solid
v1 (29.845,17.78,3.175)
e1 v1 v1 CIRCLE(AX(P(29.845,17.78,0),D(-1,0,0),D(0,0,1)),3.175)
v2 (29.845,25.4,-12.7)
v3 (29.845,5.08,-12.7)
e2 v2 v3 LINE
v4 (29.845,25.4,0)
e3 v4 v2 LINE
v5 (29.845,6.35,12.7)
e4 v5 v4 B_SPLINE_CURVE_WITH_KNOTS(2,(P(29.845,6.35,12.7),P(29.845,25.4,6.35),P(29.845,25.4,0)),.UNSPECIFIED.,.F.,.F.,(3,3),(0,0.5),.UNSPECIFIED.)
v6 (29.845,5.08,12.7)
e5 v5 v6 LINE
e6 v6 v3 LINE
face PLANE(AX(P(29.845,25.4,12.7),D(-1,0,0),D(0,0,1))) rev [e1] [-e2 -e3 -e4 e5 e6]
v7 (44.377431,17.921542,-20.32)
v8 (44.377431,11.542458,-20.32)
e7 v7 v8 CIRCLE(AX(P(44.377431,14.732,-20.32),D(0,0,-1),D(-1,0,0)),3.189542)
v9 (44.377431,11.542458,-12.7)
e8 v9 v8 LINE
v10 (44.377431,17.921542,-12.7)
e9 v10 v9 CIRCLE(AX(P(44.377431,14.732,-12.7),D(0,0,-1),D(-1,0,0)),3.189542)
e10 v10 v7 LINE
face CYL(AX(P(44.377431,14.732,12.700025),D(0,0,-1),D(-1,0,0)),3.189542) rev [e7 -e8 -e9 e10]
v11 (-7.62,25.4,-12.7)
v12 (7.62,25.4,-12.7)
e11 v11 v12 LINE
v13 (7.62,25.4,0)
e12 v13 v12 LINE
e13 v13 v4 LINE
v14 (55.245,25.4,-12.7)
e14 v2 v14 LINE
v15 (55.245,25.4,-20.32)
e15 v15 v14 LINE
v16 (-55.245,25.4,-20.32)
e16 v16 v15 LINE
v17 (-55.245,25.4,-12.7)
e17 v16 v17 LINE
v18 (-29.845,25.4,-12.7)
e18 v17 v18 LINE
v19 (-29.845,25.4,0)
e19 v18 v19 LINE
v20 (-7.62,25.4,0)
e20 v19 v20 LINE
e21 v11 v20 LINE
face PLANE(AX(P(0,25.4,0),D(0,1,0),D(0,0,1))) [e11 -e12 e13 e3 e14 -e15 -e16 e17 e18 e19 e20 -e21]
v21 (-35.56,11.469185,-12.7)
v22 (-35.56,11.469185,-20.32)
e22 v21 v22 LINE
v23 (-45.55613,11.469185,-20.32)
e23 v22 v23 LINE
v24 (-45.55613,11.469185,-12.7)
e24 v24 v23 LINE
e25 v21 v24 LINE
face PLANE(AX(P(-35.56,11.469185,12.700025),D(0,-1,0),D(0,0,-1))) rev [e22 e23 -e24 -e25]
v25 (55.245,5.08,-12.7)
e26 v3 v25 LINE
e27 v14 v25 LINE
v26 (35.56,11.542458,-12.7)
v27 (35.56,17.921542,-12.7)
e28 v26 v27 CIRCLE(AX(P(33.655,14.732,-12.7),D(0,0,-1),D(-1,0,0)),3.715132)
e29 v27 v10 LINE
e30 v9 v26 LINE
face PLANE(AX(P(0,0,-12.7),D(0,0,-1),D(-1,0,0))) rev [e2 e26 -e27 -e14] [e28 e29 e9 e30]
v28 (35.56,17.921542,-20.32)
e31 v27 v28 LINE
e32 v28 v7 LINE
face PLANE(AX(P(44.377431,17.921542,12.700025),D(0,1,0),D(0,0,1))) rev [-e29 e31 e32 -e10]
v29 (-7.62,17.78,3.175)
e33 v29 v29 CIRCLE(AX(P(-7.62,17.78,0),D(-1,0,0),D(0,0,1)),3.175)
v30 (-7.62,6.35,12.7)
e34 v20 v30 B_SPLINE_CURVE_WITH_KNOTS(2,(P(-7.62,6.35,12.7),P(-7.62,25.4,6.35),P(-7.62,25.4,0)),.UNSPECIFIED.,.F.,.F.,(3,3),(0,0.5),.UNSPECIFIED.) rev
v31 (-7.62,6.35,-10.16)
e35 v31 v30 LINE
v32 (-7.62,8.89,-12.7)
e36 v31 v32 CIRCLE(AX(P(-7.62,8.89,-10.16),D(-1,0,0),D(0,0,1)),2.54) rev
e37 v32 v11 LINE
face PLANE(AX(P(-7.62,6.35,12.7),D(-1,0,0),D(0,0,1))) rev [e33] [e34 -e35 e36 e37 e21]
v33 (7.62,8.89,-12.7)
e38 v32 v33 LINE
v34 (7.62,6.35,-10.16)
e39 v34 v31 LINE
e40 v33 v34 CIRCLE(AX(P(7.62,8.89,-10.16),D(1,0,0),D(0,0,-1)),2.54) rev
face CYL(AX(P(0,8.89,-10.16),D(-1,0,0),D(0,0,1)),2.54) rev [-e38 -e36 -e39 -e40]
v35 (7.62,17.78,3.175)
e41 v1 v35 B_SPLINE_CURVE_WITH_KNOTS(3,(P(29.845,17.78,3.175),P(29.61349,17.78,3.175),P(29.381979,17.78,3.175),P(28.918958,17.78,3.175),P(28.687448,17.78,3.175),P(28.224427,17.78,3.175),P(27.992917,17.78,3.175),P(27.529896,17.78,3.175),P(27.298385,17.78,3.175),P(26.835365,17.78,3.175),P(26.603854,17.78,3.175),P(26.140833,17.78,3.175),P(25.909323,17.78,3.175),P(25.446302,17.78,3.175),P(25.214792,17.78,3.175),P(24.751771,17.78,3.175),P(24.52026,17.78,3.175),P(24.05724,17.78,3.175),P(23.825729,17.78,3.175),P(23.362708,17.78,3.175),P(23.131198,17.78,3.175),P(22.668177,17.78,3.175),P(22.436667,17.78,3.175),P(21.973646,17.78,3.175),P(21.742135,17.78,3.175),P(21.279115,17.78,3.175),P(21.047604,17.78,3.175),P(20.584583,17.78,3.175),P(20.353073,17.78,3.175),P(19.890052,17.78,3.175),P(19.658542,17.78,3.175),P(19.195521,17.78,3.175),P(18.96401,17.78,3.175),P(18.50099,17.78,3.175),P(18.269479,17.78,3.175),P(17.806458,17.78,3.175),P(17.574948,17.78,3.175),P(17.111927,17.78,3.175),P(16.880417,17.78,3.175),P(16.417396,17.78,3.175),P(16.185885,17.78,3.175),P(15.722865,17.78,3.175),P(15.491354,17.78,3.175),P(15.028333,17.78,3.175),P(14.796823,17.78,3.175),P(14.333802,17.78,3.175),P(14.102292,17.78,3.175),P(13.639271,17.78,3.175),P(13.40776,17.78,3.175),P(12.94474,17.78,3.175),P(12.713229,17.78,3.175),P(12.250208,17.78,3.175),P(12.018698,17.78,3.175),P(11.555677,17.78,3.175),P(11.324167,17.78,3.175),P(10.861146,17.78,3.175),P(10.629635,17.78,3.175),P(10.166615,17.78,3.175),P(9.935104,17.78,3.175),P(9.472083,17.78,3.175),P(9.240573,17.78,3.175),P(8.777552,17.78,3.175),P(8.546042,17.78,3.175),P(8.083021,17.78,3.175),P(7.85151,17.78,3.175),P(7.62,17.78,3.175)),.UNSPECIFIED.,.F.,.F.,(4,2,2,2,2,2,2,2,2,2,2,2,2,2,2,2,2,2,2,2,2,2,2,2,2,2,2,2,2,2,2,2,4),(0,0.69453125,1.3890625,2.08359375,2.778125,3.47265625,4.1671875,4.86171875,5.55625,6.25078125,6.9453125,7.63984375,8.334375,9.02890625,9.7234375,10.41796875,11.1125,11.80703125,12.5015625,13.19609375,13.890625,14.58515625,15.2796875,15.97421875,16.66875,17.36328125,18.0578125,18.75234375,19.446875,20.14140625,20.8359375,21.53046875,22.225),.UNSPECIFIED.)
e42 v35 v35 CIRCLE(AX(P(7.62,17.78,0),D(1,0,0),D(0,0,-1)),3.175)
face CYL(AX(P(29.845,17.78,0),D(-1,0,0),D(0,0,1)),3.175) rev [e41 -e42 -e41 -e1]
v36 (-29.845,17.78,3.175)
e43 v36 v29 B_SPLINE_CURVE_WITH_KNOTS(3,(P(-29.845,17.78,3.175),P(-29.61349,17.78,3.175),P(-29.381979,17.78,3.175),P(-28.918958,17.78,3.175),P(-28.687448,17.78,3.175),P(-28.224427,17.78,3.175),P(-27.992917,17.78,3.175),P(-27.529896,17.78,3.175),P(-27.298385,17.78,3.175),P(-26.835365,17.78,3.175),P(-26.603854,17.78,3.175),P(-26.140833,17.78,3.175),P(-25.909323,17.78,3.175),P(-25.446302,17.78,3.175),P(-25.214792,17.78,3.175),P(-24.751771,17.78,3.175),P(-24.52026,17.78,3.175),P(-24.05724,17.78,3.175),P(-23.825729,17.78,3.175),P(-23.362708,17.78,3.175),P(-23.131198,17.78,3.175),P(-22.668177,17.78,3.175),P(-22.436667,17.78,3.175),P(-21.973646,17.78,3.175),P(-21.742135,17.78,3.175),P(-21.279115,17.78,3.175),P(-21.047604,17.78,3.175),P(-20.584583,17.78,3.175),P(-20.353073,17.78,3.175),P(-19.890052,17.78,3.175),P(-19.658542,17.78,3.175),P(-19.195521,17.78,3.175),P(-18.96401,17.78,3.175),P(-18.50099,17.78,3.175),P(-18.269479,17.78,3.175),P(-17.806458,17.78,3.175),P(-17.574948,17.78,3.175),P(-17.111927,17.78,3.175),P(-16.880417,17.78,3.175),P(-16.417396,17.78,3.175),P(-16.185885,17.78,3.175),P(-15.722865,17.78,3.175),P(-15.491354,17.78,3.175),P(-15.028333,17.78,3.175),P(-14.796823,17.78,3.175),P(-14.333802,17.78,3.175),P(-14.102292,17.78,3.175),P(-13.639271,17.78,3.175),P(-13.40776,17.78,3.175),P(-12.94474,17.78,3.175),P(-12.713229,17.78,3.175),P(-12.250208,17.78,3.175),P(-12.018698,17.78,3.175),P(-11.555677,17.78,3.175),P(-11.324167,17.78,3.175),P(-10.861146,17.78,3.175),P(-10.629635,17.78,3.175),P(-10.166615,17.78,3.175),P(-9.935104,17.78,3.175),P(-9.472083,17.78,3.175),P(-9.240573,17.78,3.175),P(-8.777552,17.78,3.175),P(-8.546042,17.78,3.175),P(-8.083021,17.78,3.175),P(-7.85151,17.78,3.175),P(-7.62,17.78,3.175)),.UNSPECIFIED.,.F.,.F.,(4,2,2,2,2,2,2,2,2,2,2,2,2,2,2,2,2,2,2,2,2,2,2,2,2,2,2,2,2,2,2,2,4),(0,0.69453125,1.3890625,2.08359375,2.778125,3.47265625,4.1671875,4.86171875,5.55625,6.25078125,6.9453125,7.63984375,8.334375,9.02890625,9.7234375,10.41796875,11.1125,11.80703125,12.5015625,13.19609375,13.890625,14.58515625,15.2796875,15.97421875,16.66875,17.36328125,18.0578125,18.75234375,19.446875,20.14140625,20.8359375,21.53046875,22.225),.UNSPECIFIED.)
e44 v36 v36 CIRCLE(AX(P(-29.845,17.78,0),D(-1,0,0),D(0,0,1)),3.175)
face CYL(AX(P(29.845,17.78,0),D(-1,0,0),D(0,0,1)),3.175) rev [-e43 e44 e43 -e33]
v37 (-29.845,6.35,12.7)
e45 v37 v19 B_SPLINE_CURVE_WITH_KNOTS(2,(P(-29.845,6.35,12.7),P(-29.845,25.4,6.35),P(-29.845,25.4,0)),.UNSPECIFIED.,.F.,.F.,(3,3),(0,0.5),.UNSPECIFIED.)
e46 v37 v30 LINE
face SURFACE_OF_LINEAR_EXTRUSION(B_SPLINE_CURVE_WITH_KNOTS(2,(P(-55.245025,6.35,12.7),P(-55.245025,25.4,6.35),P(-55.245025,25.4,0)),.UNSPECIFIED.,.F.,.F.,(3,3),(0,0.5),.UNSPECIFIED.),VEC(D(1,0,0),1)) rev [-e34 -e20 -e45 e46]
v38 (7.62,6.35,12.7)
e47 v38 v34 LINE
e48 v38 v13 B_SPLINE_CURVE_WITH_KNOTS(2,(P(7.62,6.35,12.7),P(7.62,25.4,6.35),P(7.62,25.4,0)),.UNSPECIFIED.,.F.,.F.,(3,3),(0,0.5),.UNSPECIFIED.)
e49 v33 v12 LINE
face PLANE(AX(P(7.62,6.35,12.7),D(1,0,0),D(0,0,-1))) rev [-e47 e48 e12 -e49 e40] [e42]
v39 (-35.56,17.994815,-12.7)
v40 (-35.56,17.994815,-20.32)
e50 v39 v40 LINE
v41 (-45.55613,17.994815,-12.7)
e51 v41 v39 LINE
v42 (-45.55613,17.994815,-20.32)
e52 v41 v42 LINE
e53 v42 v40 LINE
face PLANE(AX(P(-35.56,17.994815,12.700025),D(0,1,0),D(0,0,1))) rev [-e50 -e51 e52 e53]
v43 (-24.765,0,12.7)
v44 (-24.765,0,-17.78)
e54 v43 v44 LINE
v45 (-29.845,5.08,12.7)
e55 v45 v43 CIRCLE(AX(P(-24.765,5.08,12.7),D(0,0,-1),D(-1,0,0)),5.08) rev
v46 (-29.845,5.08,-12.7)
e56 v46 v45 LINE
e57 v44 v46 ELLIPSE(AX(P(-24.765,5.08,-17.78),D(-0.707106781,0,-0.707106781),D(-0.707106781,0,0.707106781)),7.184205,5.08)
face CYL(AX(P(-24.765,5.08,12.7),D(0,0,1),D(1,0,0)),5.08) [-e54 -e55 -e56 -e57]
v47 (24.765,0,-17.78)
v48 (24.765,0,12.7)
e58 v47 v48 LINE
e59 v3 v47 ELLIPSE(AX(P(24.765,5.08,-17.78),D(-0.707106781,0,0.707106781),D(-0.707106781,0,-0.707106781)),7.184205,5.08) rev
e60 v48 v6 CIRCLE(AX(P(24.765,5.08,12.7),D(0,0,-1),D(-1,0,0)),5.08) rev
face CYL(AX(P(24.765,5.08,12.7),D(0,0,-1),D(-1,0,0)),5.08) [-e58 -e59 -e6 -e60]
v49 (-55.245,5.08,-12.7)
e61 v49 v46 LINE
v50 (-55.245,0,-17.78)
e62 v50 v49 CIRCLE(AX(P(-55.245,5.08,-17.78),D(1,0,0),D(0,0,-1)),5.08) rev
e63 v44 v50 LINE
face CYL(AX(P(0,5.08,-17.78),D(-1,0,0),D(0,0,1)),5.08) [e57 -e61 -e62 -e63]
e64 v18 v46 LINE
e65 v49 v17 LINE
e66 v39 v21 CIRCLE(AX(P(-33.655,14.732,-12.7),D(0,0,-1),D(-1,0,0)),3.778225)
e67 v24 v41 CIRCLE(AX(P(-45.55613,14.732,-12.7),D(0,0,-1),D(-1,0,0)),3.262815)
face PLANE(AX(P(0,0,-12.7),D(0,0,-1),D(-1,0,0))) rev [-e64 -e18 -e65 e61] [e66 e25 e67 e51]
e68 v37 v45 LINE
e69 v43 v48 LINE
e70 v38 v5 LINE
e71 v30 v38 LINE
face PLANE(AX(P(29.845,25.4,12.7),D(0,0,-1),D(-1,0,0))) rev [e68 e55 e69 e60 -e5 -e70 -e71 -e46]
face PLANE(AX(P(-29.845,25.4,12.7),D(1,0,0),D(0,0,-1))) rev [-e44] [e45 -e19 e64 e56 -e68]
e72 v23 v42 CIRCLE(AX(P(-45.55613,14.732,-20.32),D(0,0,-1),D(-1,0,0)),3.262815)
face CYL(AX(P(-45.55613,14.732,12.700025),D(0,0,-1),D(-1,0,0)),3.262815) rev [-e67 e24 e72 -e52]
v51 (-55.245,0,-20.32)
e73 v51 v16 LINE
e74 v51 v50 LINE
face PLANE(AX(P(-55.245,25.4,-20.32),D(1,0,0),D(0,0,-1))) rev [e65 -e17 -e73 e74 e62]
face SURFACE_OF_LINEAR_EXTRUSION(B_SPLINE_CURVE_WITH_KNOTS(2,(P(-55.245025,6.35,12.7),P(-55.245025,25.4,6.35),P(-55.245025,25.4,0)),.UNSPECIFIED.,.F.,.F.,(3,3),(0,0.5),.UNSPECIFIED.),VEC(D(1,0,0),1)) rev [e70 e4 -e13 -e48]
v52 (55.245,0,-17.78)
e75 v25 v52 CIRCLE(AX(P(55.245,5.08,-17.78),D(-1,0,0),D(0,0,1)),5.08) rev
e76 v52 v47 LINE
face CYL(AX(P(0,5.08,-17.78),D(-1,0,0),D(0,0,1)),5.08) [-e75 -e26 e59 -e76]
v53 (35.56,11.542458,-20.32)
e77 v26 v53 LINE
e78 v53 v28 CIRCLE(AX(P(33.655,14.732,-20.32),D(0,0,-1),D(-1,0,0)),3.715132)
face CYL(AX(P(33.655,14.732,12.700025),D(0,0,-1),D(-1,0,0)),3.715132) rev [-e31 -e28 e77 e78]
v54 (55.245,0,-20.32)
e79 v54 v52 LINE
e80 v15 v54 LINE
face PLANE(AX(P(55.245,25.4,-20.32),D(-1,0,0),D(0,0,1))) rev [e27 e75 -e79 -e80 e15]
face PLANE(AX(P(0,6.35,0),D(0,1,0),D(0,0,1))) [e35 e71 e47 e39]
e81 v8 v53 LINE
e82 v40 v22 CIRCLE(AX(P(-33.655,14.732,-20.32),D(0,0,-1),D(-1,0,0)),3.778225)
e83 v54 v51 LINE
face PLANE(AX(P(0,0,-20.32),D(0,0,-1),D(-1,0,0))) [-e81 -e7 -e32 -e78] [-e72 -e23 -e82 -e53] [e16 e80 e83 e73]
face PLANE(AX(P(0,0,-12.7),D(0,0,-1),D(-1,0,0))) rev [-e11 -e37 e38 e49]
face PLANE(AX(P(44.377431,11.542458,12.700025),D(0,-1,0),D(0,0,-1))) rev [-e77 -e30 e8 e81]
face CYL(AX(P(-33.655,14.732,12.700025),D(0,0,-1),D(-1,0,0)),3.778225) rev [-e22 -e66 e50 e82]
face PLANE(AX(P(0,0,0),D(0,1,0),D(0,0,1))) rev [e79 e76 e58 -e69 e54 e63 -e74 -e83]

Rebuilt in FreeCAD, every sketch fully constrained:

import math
import FreeCAD as App
import Part
import Sketcher
Q = App.Units.Quantity


def edges_at(feature, points):
    """Names of the edges that pass closest to the given points."""
    edges = feature.Shape.Edges
    near = lambda p: min(range(len(edges)), key=lambda i: edges[i].distToShape(Part.Vertex(*p))[0])
    return sorted({f"Edge{near(p) + 1}" for p in points})


def add_polygon(sketch, points):
    """Adds a closed chain of lines whose ends are joined by coincident constraints."""
    first, n = sketch.GeometryCount, len(points)
    for a, b in zip(points, points[1:] + points[:1]):
        sketch.addGeometry(Part.LineSegment(App.Vector(*a, 0), App.Vector(*b, 0)), False)
    for i in range(n):
        sketch.addConstraint(Sketcher.Constraint("Coincident", first + i, 2, first + (i + 1) % n, 1))

doc = App.newDocument("Part")
body = doc.addObject("PartDesign::Body", "Body")

# Sketch on XZ plane
sketch1 = doc.addObject("Sketcher::SketchObject", "Sketch")
body.addObject(sketch1)
sketch1.AttachmentSupport = (doc.XZ_Plane, [""])
sketch1.MapMode = "FlatFace"
add_polygon(sketch1, [(-30, -13), (-30, 13), (30, 13), (30, -13)])  # lines 0-3
sketch1.addConstraint([
    Sketcher.Constraint("Vertical", 0),
    Sketcher.Constraint("Horizontal", 1),
    Sketcher.Constraint("Vertical", 2),
    Sketcher.Constraint("Horizontal", 3),
    Sketcher.Constraint("Symmetric", 0, 2, 2, 2, -1, 1),
    Sketcher.Constraint("DistanceY", 0, 1, 0, 2, Q("1 in")),
    Sketcher.Constraint("DistanceX", 1, 1, 1, 2, Q("2.35 in")),
])
pad1 = doc.addObject("PartDesign::Pad", "Pad")
body.addObject(pad1)
pad1.Profile = sketch1
pad1.Length = Q("1 in")
pad1.Reversed = True

# Sketch on XZ plane
sketch2 = doc.addObject("Sketcher::SketchObject", "Sketch001")
body.addObject(sketch2)
sketch2.AttachmentSupport = (doc.XZ_Plane, [""])
sketch2.MapMode = "FlatFace"
sketch2.AttachmentOffset = App.Placement(App.Vector(0, 0, -1 * 25.4), App.Rotation())
add_polygon(sketch2, [(-8, -13), (-8, 13), (8, 13), (8, -13)])  # lines 0-3
sketch2.addConstraint([
    Sketcher.Constraint("Vertical", 0),
    Sketcher.Constraint("Horizontal", 1),
    Sketcher.Constraint("Vertical", 2),
    Sketcher.Constraint("Horizontal", 3),
    Sketcher.Constraint("Symmetric", 0, 2, 2, 2, -1, 1),
    Sketcher.Constraint("DistanceY", 0, 1, 0, 2, Q("1 in")),
    Sketcher.Constraint("DistanceX", 1, 1, 1, 2, Q("0.6 in")),
])
pocket1 = doc.addObject("PartDesign::Pocket", "Pocket")
body.addObject(pocket1)
pocket1.Profile = sketch2
pocket1.Length = Q("0.75 in")
pocket1.Reversed = True

# Sketch on YZ plane
sketch3 = doc.addObject("Sketcher::SketchObject", "Sketch002")
body.addObject(sketch3)
sketch3.AttachmentSupport = (doc.YZ_Plane, [""])
sketch3.MapMode = "FlatFace"
sketch3.AttachmentOffset = App.Placement(App.Vector(0, 0, -1.175 * 25.4), App.Rotation())
sketch3.addGeometry(Part.Circle(App.Vector(17.8, 0, 0), App.Vector(0, 0, 1), 3.2), False)
sketch3.addConstraint([
    Sketcher.Constraint("PointOnObject", 0, 3, -1),
    Sketcher.Constraint("Diameter", 0, Q("0.25 in")),
    Sketcher.Constraint("DistanceX", -1, 1, 0, 3, Q("0.7 in")),
])
pocket2 = doc.addObject("PartDesign::Pocket", "Pocket001")
body.addObject(pocket2)
pocket2.Profile = sketch3
pocket2.Type = "ThroughAll"
pocket2.Reversed = True

# Sketch on XY plane
sketch4 = doc.addObject("Sketcher::SketchObject", "Sketch003")
body.addObject(sketch4)
sketch4.AttachmentSupport = (doc.XY_Plane, [""])
sketch4.MapMode = "FlatFace"
sketch4.AttachmentOffset = App.Placement(App.Vector(0, 0, -0.5 * 25.4), App.Rotation())
add_polygon(sketch4, [(55, 25), (55, 0), (-55, 0), (-55, 25)])  # lines 0-3
sketch4.addConstraint([
    Sketcher.Constraint("Vertical", 0),
    Sketcher.Constraint("Horizontal", 1),
    Sketcher.Constraint("Vertical", 2),
    Sketcher.Constraint("Horizontal", 3),
    Sketcher.Constraint("Symmetric", 0, 2, 1, 2, -1, 1),
    Sketcher.Constraint("DistanceY", 0, 2, 0, 1, Q("1 in")),
    Sketcher.Constraint("DistanceX", 1, 2, 1, 1, Q("4.35 in")),
])
pad2 = doc.addObject("PartDesign::Pad", "Pad001")
body.addObject(pad2)
pad2.Profile = sketch4
pad2.Length = Q("0.3 in")
pad2.Reversed = True

# Sketch on YZ plane
sketch5 = doc.addObject("Sketcher::SketchObject", "Sketch004")
body.addObject(sketch5)
sketch5.AttachmentSupport = (doc.YZ_Plane, [""])
sketch5.MapMode = "FlatFace"
sketch5.AttachmentOffset = App.Placement(App.Vector(0, 0, 1.175 * 25.4), App.Rotation())
sketch5.addGeometry([
    Part.LineSegment(App.Vector(25.4, 12.7, 0), App.Vector(6.35, 12.7, 0)),
    Part.BSplineCurve([App.Vector(6.35, 12.7, 0), App.Vector(25.4, 6.35, 0), App.Vector(25.4, 0, 0)], [3, 3], [0, 0.5], False, 2, [1, 1, 1], False),
    Part.LineSegment(App.Vector(25.4, 0, 0), App.Vector(25.4, 12.7, 0)),
], False)
sketch5.addConstraint([
    Sketcher.Constraint("Block", 1),
    Sketcher.Constraint("Coincident", 0, 2, 1, 1),
    Sketcher.Constraint("Coincident", 1, 2, 2, 1),
    Sketcher.Constraint("Coincident", 2, 2, 0, 1),
    Sketcher.Constraint("Horizontal", 0),
    Sketcher.Constraint("Vertical", 2),
])
pocket3 = doc.addObject("PartDesign::Pocket", "Pocket002")
body.addObject(pocket3)
pocket3.Profile = sketch5
pocket3.Type = "ThroughAll"

# Sketch on XY plane
sketch6 = doc.addObject("Sketcher::SketchObject", "Sketch005")
body.addObject(sketch6)
sketch6.AttachmentSupport = (doc.XY_Plane, [""])
sketch6.MapMode = "FlatFace"
sketch6.AttachmentOffset = App.Placement(App.Vector(0, 0, -0.8 * 25.4), App.Rotation())
sketch6.addGeometry([
    Part.LineSegment(App.Vector(35.6, 17.9, 0), App.Vector(44.4, 17.9, 0)),  # 0
    Part.ArcOfCircle(Part.Circle(App.Vector(44.4, 14.7, 0), App.Vector(0, 0, 1), 3.2), math.radians(-90), math.radians(90)),  # 1
    Part.LineSegment(App.Vector(44.4, 11.5, 0), App.Vector(35.6, 11.5, 0)),  # 2
    Part.ArcOfCircle(Part.Circle(App.Vector(33.7, 14.7, 0), App.Vector(0, 0, 1), 3.7), math.radians(59), math.radians(301)),  # 3
    Part.LineSegment(App.Vector(-45.6, 18, 0), App.Vector(-35.6, 18, 0)),  # 4
    Part.ArcOfCircle(Part.Circle(App.Vector(-33.7, 14.7, 0), App.Vector(0, 0, 1), 3.8), math.radians(-120), math.radians(120)),  # 5
    Part.LineSegment(App.Vector(-35.6, 11.5, 0), App.Vector(-45.6, 11.5, 0)),  # 6
    Part.ArcOfCircle(Part.Circle(App.Vector(-45.6, 14.7, 0), App.Vector(0, 0, 1), 3.3), math.radians(90), math.radians(270)),  # 7
], False)
sketch6.addConstraint([
    Sketcher.Constraint("Tangent", 0, 2, 1, 2),
    Sketcher.Constraint("Tangent", 1, 1, 2, 1),
    Sketcher.Constraint("Coincident", 2, 2, 3, 2),
    Sketcher.Constraint("Coincident", 3, 1, 0, 1),
    Sketcher.Constraint("Coincident", 4, 2, 5, 2),
    Sketcher.Constraint("Coincident", 5, 1, 6, 1),
    Sketcher.Constraint("Tangent", 6, 2, 7, 2),
    Sketcher.Constraint("Tangent", 7, 1, 4, 1),
    Sketcher.Constraint("Horizontal", 0),
    Sketcher.Constraint("Horizontal", 2),
    Sketcher.Constraint("Horizontal", 4),
    Sketcher.Constraint("Horizontal", 6),
    Sketcher.Constraint("Symmetric", 3, 3, 5, 3, -2),
    Sketcher.Constraint("Horizontal", 1, 3, 3, 3),
    Sketcher.Constraint("Horizontal", 5, 3, 7, 3),
    Sketcher.Constraint("DistanceX", -1, 1, 2, 2, Q("1.4 in")),
    Sketcher.Constraint("DistanceX", 4, 2, -1, 1, Q("1.4 in")),
    Sketcher.Constraint("DistanceY", -1, 1, 1, 3, Q("0.58 in")),
    Sketcher.Constraint("DistanceX", 5, 3, 3, 3, Q("2.65 in")),
    Sketcher.Constraint("Radius", 3, 3.715132),
    Sketcher.Constraint("Radius", 5, 3.778225),
    Sketcher.Constraint("DistanceX", 0, 1, 0, 2, 8.817431),
    Sketcher.Constraint("DistanceX", 4, 1, 4, 2, 9.99613),
])
pocket4 = doc.addObject("PartDesign::Pocket", "Pocket003")
body.addObject(pocket4)
pocket4.Profile = sketch6
pocket4.Type = "ThroughAll"
pocket4.Reversed = True
doc.recompute()

fillet = doc.addObject("PartDesign::Fillet", "Fillet")
body.addObject(fillet)
fillet.Base = (pocket4, edges_at(pocket4, [
    (42.545, 0, -12.7),
    (-42.545, 0, -12.7),
    (29.845, 0, 0),
    (-29.845, 0, 0),
]))
fillet.Radius = Q("0.2 in")
doc.recompute()

fillet2 = doc.addObject("PartDesign::Fillet", "Fillet001")
body.addObject(fillet2)
fillet2.Base = (fillet, edges_at(fillet, [(0, 6.35, -12.7)]))
fillet2.Radius = Q("0.1 in")

doc.recompute()
